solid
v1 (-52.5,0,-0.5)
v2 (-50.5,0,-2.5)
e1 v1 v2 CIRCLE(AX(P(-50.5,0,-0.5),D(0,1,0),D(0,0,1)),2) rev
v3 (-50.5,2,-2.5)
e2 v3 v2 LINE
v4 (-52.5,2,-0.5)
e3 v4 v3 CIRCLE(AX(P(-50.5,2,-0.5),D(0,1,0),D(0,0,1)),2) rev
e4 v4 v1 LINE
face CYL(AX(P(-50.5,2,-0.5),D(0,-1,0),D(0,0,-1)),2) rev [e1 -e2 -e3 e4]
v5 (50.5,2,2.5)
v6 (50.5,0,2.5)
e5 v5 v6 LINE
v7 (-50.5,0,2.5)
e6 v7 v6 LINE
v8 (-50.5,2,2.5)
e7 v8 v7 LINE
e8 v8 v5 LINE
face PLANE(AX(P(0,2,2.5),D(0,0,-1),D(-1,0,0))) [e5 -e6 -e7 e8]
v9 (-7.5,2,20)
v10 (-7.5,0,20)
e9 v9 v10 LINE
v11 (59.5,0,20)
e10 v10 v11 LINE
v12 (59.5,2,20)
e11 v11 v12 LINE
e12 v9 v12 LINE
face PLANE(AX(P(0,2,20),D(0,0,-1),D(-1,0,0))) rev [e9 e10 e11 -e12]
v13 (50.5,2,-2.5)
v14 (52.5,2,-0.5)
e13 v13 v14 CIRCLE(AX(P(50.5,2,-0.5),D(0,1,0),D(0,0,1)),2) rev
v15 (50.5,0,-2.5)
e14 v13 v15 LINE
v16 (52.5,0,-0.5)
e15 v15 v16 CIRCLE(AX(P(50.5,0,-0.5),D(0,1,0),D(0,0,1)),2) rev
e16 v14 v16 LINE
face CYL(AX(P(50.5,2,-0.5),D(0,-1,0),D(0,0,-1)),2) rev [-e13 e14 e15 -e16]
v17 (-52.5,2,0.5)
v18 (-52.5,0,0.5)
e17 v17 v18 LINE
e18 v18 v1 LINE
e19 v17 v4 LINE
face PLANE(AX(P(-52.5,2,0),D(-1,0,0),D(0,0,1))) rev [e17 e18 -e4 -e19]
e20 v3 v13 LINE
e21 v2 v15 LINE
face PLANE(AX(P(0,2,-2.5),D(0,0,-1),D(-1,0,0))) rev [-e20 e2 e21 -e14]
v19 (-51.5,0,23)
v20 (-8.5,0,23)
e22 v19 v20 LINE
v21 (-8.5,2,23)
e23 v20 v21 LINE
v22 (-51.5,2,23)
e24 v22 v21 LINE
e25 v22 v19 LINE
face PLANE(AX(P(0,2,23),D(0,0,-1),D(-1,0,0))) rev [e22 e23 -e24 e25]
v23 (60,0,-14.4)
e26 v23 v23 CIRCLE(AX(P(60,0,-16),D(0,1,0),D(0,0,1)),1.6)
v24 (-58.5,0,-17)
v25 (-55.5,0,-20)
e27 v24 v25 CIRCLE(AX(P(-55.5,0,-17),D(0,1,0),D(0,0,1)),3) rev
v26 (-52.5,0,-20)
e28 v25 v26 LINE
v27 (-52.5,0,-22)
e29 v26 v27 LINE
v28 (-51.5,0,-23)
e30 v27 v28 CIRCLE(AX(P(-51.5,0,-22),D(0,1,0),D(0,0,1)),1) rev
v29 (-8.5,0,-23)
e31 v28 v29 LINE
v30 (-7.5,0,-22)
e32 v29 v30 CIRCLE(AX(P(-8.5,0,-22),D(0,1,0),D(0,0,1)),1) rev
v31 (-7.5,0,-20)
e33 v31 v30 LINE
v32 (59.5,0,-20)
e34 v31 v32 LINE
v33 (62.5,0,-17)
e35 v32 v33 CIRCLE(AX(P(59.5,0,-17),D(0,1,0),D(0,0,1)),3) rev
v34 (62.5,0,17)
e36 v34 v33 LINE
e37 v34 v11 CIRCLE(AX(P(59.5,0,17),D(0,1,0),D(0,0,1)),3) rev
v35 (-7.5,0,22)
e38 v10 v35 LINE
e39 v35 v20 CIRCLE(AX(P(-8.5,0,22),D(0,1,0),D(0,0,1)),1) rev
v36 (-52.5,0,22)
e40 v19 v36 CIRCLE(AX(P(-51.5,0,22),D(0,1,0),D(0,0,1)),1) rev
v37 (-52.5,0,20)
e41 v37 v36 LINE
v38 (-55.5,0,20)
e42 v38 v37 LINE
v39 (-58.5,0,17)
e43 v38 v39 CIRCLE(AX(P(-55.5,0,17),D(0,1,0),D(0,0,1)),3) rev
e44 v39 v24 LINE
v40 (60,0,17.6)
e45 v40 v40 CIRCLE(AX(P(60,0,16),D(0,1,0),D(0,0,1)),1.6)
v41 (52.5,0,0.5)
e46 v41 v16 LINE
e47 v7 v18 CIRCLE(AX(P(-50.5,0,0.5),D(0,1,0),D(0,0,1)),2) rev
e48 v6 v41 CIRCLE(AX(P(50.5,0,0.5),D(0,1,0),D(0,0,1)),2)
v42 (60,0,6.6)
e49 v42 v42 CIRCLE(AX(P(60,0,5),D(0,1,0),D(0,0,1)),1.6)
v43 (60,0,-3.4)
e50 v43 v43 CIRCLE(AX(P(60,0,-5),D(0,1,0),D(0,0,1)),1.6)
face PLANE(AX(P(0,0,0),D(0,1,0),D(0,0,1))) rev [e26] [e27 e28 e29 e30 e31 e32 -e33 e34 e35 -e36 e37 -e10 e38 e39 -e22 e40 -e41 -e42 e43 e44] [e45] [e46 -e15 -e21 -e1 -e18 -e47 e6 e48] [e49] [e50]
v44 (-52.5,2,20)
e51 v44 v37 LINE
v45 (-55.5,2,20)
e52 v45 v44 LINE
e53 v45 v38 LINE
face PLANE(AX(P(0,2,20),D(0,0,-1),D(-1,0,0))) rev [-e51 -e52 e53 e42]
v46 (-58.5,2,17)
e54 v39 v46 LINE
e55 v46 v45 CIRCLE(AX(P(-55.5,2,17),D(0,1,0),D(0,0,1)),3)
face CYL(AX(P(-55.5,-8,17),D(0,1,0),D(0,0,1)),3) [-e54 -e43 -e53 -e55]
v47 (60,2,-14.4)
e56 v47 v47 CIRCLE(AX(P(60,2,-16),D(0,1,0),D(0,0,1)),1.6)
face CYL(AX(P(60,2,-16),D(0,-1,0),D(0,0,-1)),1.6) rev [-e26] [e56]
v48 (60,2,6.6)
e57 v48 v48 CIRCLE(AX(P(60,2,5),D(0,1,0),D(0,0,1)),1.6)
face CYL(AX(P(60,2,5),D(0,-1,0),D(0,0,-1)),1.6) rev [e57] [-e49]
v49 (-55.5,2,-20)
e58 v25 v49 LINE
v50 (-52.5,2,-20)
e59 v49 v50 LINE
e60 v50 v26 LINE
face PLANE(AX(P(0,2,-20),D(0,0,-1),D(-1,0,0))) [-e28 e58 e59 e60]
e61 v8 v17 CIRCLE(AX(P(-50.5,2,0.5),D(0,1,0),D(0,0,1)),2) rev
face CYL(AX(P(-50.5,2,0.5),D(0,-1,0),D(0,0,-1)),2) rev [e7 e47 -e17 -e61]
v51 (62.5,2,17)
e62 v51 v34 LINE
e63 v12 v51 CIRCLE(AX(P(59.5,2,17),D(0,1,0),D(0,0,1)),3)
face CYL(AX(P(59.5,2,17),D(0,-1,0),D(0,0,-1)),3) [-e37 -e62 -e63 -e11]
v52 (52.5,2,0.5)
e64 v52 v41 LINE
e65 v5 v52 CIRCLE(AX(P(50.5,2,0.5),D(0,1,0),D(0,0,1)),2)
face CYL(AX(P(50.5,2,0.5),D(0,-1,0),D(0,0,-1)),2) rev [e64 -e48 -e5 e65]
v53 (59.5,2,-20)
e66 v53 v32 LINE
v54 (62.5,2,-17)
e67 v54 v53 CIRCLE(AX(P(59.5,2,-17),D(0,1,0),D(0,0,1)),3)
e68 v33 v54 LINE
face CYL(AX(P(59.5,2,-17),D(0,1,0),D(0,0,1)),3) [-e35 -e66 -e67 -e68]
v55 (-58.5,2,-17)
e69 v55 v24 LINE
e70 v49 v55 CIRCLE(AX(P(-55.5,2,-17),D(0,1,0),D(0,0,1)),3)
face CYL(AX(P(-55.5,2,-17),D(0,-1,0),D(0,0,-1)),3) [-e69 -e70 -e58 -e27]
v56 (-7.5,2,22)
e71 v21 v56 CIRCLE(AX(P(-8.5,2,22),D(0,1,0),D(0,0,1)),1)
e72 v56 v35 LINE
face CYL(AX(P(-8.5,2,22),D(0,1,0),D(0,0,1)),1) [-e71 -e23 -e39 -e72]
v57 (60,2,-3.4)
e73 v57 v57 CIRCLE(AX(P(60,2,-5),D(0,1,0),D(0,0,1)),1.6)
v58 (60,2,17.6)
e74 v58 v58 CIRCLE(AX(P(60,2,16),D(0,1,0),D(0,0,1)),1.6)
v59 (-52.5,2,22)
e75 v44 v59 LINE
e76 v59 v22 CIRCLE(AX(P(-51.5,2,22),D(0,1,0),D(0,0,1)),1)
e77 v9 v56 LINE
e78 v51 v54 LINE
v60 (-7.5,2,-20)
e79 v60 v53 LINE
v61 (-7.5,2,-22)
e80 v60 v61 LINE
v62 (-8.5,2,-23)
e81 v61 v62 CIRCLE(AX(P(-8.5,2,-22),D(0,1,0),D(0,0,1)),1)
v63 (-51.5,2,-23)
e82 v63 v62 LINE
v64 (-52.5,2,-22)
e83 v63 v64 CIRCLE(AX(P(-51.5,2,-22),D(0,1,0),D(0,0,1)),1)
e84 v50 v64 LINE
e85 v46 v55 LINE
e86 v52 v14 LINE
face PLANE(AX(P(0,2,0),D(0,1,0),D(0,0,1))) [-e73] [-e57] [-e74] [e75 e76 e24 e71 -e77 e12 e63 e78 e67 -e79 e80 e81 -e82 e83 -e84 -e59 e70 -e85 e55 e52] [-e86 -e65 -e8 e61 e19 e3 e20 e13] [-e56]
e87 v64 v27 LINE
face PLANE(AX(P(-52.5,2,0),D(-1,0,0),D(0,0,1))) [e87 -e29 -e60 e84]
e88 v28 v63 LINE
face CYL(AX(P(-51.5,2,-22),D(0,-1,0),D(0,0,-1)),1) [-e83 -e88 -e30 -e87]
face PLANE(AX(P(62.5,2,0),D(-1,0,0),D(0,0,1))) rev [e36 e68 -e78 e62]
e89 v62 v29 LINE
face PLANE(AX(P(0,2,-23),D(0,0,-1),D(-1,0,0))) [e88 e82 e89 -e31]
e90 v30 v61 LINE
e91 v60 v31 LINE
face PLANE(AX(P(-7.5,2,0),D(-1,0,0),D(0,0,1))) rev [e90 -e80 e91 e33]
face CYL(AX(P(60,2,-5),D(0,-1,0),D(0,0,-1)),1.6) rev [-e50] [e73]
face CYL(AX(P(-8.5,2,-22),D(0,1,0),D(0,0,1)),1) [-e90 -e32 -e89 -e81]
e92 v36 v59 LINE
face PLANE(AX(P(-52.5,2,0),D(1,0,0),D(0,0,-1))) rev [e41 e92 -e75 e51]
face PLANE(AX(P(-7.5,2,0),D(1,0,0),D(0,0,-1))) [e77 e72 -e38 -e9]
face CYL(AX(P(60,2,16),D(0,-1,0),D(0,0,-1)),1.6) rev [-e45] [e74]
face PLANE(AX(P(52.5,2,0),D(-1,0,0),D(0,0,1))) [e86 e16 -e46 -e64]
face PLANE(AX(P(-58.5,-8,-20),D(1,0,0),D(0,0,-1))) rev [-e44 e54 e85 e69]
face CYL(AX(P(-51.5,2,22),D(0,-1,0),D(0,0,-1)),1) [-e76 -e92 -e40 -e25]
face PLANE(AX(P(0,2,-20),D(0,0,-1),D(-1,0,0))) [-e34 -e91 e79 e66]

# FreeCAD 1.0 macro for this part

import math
import FreeCAD as App
import Part
import Sketcher

V = App.Vector


def edges_at(feature, points):
    """Names of the edges that pass closest to the given points."""
    edges = feature.Shape.Edges
    near = lambda p: min(range(len(edges)), key=lambda i: edges[i].distToShape(Part.Vertex(*p))[0])
    return sorted({f"Edge{near(p) + 1}" for p in points})

doc = App.newDocument("Part")
body = doc.addObject("PartDesign::Body", "Body")

# Sketch on XZ plane
sketch1 = doc.addObject("Sketcher::SketchObject", "Sketch")
body.addObject(sketch1)
sketch1.AttachmentSupport = (doc.XZ_Plane, [""])
sketch1.MapMode = "FlatFace"
sketch1.addGeometry([
    Part.LineSegment(V(-62.5, -20, 0), V(-62.5, 20, 0)),  # 0
    Part.LineSegment(V(-62.5, 20, 0), V(-52.5, 20, 0)),  # 1
    Part.LineSegment(V(-52.5, 20, 0), V(-52.5, 23, 0)),  # 2
    Part.LineSegment(V(-52.5, 23, 0), V(-7.5, 23, 0)),  # 3
    Part.LineSegment(V(-7.5, 23, 0), V(-7.5, 20, 0)),  # 4
    Part.LineSegment(V(-7.5, 20, 0), V(62.5, 20, 0)),  # 5
    Part.LineSegment(V(62.5, 20, 0), V(62.5, -20, 0)),  # 6
    Part.LineSegment(V(62.5, -20, 0), V(-7.5, -20, 0)),  # 7
    Part.LineSegment(V(-7.5, -20, 0), V(-7.5, -23, 0)),  # 8
    Part.LineSegment(V(-7.5, -23, 0), V(-52.5, -23, 0)),  # 9
    Part.LineSegment(V(-52.5, -23, 0), V(-52.5, -20, 0)),  # 10
    Part.LineSegment(V(-52.5, -20, 0), V(-62.5, -20, 0)),  # 11
    Part.Circle(V(60, 16, 0), V(0, 0, 1), 1.6),  # 12
    Part.Circle(V(60, 5, 0), V(0, 0, 1), 1.6),  # 13
    Part.LineSegment(V(50.5, 2.5, 0), V(-50.5, 2.5, 0)),  # 14
    Part.ArcOfCircle(Part.Circle(V(-50.5, 0.5, 0), V(0, 0, 1), 2), math.radians(90), math.radians(180)),  # 15
    Part.LineSegment(V(-52.5, 0.5, 0), V(-52.5, -0.5, 0)),  # 16
    Part.ArcOfCircle(Part.Circle(V(-50.5, -0.5, 0), V(0, 0, 1), 2), math.radians(-180), math.radians(-90)),  # 17
    Part.LineSegment(V(-50.5, -2.5, 0), V(50.5, -2.5, 0)),  # 18
    Part.ArcOfCircle(Part.Circle(V(50.5, -0.5, 0), V(0, 0, 1), 2), math.radians(-90), math.radians(0)),  # 19
    Part.LineSegment(V(52.5, -0.5, 0), V(52.5, 0.5, 0)),  # 20
    Part.ArcOfCircle(Part.Circle(V(50.5, 0.5, 0), V(0, 0, 1), 2), math.radians(0), math.radians(90)),  # 21
    Part.Circle(V(60, -5, 0), V(0, 0, 1), 1.6),  # 22
    Part.Circle(V(60, -16, 0), V(0, 0, 1), 1.6),  # 23
], False)
sketch1.addConstraint([
    Sketcher.Constraint("Coincident", 0, 2, 1, 1),
    Sketcher.Constraint("Coincident", 1, 2, 2, 1),
    Sketcher.Constraint("Coincident", 2, 2, 3, 1),
    Sketcher.Constraint("Coincident", 3, 2, 4, 1),
    Sketcher.Constraint("Coincident", 4, 2, 5, 1),
    Sketcher.Constraint("Coincident", 5, 2, 6, 1),
    Sketcher.Constraint("Coincident", 6, 2, 7, 1),
    Sketcher.Constraint("Coincident", 7, 2, 8, 1),
    Sketcher.Constraint("Coincident", 8, 2, 9, 1),
    Sketcher.Constraint("Coincident", 9, 2, 10, 1),
    Sketcher.Constraint("Coincident", 10, 2, 11, 1),
    Sketcher.Constraint("Coincident", 11, 2, 0, 1),
    Sketcher.Constraint("Tangent", 14, 2, 15, 1),
    Sketcher.Constraint("Tangent", 15, 2, 16, 1),
    Sketcher.Constraint("Tangent", 16, 2, 17, 1),
    Sketcher.Constraint("Tangent", 17, 2, 18, 1),
    Sketcher.Constraint("Tangent", 18, 2, 19, 1),
    Sketcher.Constraint("Tangent", 19, 2, 20, 1),
    Sketcher.Constraint("Tangent", 20, 2, 21, 1),
    Sketcher.Constraint("Tangent", 21, 2, 14, 1),
    Sketcher.Constraint("Vertical", 0),
    Sketcher.Constraint("Horizontal", 1),
    Sketcher.Constraint("Vertical", 2),
    Sketcher.Constraint("Horizontal", 3),
    Sketcher.Constraint("Vertical", 4),
    Sketcher.Constraint("Horizontal", 5),
    Sketcher.Constraint("Vertical", 6),
    Sketcher.Constraint("Horizontal", 7),
    Sketcher.Constraint("Vertical", 8),
    Sketcher.Constraint("Horizontal", 9),
    Sketcher.Constraint("Vertical", 10),
    Sketcher.Constraint("Horizontal", 11),
    Sketcher.Constraint("Horizontal", 14),
    Sketcher.Constraint("Vertical", 16),
    Sketcher.Constraint("Horizontal", 18),
    Sketcher.Constraint("Vertical", 20),
    Sketcher.Constraint("Equal", 12, 13),
    Sketcher.Constraint("Equal", 15, 17),
    Sketcher.Constraint("Equal", 17, 19),
    Sketcher.Constraint("Equal", 19, 21),
    Sketcher.Constraint("Equal", 13, 22),
    Sketcher.Constraint("Equal", 22, 23),
    Sketcher.Constraint("Symmetric", 15, 3, 19, 3, -1, 1),
    Sketcher.Constraint("Symmetric", 0, 2, 6, 2, -1, 1),
    Sketcher.Constraint("Symmetric", 13, 3, 22, 3, -1),
    Sketcher.Constraint("Symmetric", 12, 3, 23, 3, -1),
    Sketcher.Constraint("Symmetric", 4, 2, 7, 2, -1),
    Sketcher.Constraint("Symmetric", 2, 2, 9, 2, -1),
    Sketcher.Constraint("Horizontal", 7, 2, 10, 2),
    Sketcher.Constraint("Vertical", 12, 3, 13, 3),
    Sketcher.Constraint("Vertical", 10, 2, 15, 2),
    Sketcher.Constraint("Radius", 15, 2.0),
    Sketcher.Constraint("Diameter", 12, 3.2),
    Sketcher.Constraint("DistanceX", 1, 1, 1, 2, 10.0),
    Sketcher.Constraint("DistanceX", 3, 1, 3, 2, 45.0),
    Sketcher.Constraint("DistanceX", 5, 1, 5, 2, 70.0),
    Sketcher.Constraint("DistanceY", 0, 1, 0, 2, 40.0),
    Sketcher.Constraint("DistanceY", 2, 1, 2, 2, 3.0),
    Sketcher.Constraint("DistanceY", 16, 2, 16, 1, 1.0),
    Sketcher.Constraint("DistanceX", -1, 1, 12, 3, 60.0),
    Sketcher.Constraint("DistanceY", -1, 1, 12, 3, 16.0),
    Sketcher.Constraint("DistanceY", -1, 1, 13, 3, 5.0),
])
pad1 = doc.addObject("PartDesign::Pad", "Pad")
body.addObject(pad1)
pad1.Profile = sketch1
pad1.Length = 2
pad1.Reversed = True

# Sketch on XZ plane
sketch2 = doc.addObject("Sketcher::SketchObject", "Sketch001")
body.addObject(sketch2)
sketch2.AttachmentSupport = (doc.XZ_Plane, [""])
sketch2.MapMode = "FlatFace"
sketch2.AttachmentOffset = App.Placement(V(0, 0, -2), App.Rotation())
sketch2.addGeometry([
    Part.LineSegment(V(-62.5, -20, 0), V(-62.5, 20, 0)),
    Part.LineSegment(V(-62.5, 20, 0), V(-58.5, 20, 0)),
    Part.LineSegment(V(-58.5, 20, 0), V(-58.5, -20, 0)),
    Part.LineSegment(V(-58.5, -20, 0), V(-62.5, -20, 0)),
], False)
sketch2.addConstraint([
    Sketcher.Constraint("Coincident", 0, 2, 1, 1),
    Sketcher.Constraint("Coincident", 1, 2, 2, 1),
    Sketcher.Constraint("Coincident", 2, 2, 3, 1),
    Sketcher.Constraint("Coincident", 3, 2, 0, 1),
    Sketcher.Constraint("Vertical", 0),
    Sketcher.Constraint("Horizontal", 1),
    Sketcher.Constraint("Vertical", 2),
    Sketcher.Constraint("Horizontal", 3),
    Sketcher.Constraint("DistanceX", 1, 1, 1, 2, 4.0),
    Sketcher.Constraint("DistanceY", 0, 1, 0, 2, 40.0),
    Sketcher.Constraint("DistanceY", -1, 1, 0, 2, 20.0),
    Sketcher.Constraint("DistanceX", 0, 2, -1, 1, 62.5),
])
pocket1 = doc.addObject("PartDesign::Pocket", "Pocket")
body.addObject(pocket1)
pocket1.Profile = sketch2
pocket1.Length = 10
pocket1.Reversed = True
doc.recompute()

fillet = doc.addObject("PartDesign::Fillet", "Fillet")
body.addObject(fillet)
fillet.Base = (pocket1, edges_at(pocket1, [
    (62.5, 1, -20),
    (62.5, 1, 20),
    (-58.5, 1, -20),
    (-58.5, 1, 20),
]))
fillet.Radius = 3
doc.recompute()

fillet2 = doc.addObject("PartDesign::Fillet", "Fillet001")
body.addObject(fillet2)
fillet2.Base = (fillet, edges_at(fillet, [
    (-52.5, 1, -23),
    (-7.5, 1, -23),
    (-7.5, 1, 23),
    (-52.5, 1, 23),
]))
fillet2.Radius = 1

doc.recompute()
